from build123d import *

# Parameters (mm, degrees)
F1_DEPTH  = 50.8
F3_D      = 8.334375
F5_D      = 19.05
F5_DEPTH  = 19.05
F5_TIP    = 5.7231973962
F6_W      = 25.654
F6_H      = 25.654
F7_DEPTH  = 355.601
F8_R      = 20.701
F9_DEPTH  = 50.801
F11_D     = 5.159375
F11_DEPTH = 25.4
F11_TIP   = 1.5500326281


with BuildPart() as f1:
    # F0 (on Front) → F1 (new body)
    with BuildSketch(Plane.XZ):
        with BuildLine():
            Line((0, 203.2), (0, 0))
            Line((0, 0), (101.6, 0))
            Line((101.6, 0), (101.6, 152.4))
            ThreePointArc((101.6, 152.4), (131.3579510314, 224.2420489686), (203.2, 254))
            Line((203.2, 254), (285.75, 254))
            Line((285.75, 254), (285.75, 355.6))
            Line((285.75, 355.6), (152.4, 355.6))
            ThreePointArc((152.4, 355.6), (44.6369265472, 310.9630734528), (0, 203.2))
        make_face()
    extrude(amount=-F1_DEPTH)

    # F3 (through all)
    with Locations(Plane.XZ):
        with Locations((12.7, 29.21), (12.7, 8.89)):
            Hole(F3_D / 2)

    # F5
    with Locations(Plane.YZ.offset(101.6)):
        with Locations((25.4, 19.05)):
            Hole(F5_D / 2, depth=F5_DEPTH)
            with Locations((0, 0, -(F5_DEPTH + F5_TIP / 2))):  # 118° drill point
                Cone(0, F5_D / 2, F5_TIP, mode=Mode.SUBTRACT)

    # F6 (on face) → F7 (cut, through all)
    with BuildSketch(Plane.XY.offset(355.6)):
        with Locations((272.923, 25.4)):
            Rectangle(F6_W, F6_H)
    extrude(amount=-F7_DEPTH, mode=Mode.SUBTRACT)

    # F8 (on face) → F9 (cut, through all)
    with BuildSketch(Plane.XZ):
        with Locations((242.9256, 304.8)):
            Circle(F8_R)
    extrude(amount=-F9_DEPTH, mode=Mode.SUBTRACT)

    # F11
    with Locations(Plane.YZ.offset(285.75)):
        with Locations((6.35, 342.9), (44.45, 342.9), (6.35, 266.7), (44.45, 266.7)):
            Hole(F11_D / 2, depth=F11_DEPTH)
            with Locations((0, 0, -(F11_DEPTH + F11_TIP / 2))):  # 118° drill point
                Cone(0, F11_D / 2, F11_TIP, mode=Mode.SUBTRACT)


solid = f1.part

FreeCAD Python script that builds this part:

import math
import FreeCAD as App
import Part
import Sketcher

V = App.Vector
Q = App.Units.Quantity

doc = App.newDocument("Part")
params = doc.addObject("Spreadsheet::Sheet", "Params")
for row, (alias, value) in enumerate([
    ("sketch1_radius", "4 in"),
    ("sketch1_radius2", "6 in"),
    ("sketch1_width", "4 in"),
    ("sketch1_height", "8 in"),
    ("sketch1_width2", "3.25 in"),
    ("pad1_length", "2 in"),
    ("sketch2_diameter", "0.328125 in"),
    ("hole_diameter", "0.328125 in"),
    ("sketch3_diameter", "0.75 in"),
    ("hole2_diameter", "0.75 in"),
    ("hole2_depth", "0.75 in"),
    ("sketch4_width", "1.01 in"),
    ("sketch5_diameter", "1.63 in"),
    ("sketch6_diameter", "0.203125 in"),
    ("hole3_diameter", "0.203125 in"),
    ("hole3_depth", "1 in"),
], start=1):
    params.set(f"A{row}", alias)
    params.set(f"B{row}", "=" + value)
    params.setAlias(f"B{row}", alias)

body = doc.addObject("PartDesign::Body", "Body")

sketch1 = doc.addObject("Sketcher::SketchObject", "Sketch")
body.addObject(sketch1)
sketch1.AttachmentSupport = (doc.XZ_Plane, [""])
sketch1.MapMode = "FlatFace"
sketch1.addGeometry(Part.LineSegment(V(0, 203, 0), V(0, 0, 0)), False)
sketch1.addGeometry(Part.LineSegment(V(0, 0, 0), V(102, 0, 0)), False)
sketch1.addGeometry(Part.LineSegment(V(102, 0, 0), V(102, 152, 0)), False)
sketch1.addGeometry(Part.ArcOfCircle(Part.Circle(V(203, 152, 0), V(0, 0, 1), 102), math.radians(90), math.radians(180)), False)
sketch1.addGeometry(Part.LineSegment(V(203, 254, 0), V(286, 254, 0)), False)
sketch1.addGeometry(Part.LineSegment(V(286, 254, 0), V(286, 356, 0)), False)
sketch1.addGeometry(Part.LineSegment(V(286, 356, 0), V(152, 356, 0)), False)
sketch1.addGeometry(Part.ArcOfCircle(Part.Circle(V(152, 203, 0), V(0, 0, 1), 152), math.radians(90), math.radians(180)), False)
sketch1.addConstraint(Sketcher.Constraint("Coincident", 0, 2, 1, 1))
sketch1.addConstraint(Sketcher.Constraint("Coincident", 1, 2, 2, 1))
sketch1.addConstraint(Sketcher.Constraint("Tangent", 2, 2, 3, 2))
sketch1.addConstraint(Sketcher.Constraint("Tangent", 3, 1, 4, 1))
sketch1.addConstraint(Sketcher.Constraint("Coincident", 4, 2, 5, 1))
sketch1.addConstraint(Sketcher.Constraint("Coincident", 5, 2, 6, 1))
sketch1.addConstraint(Sketcher.Constraint("Tangent", 6, 2, 7, 1))
sketch1.addConstraint(Sketcher.Constraint("Tangent", 7, 2, 0, 1))
sketch1.addConstraint(Sketcher.Constraint("Vertical", 0))
sketch1.addConstraint(Sketcher.Constraint("Horizontal", 1))
sketch1.addConstraint(Sketcher.Constraint("Vertical", 2))
sketch1.addConstraint(Sketcher.Constraint("Horizontal", 4))
sketch1.addConstraint(Sketcher.Constraint("Vertical", 5))
sketch1.addConstraint(Sketcher.Constraint("Horizontal", 6))
sketch1.addConstraint(Sketcher.Constraint("Coincident", 0, 2, -1, 1))
sketch1.addConstraint(Sketcher.Constraint("Equal", 1, 5))
sketch1.addConstraint(Sketcher.Constraint("Radius", 3, Q("4 in")))
sketch1.addConstraint(Sketcher.Constraint("Radius", 7, Q("6 in")))
sketch1.addConstraint(Sketcher.Constraint("DistanceX", 1, 1, 1, 2, Q("4 in")))
sketch1.addConstraint(Sketcher.Constraint("DistanceY", 0, 2, 0, 1, Q("8 in")))
sketch1.addConstraint(Sketcher.Constraint("DistanceX", 4, 1, 4, 2, Q("3.25 in")))
sketch1.setExpression("Constraints[16]", "Params.sketch1_radius")
sketch1.setExpression("Constraints[17]", "Params.sketch1_radius2")
sketch1.setExpression("Constraints[18]", "Params.sketch1_width")
sketch1.setExpression("Constraints[19]", "Params.sketch1_height")
sketch1.setExpression("Constraints[20]", "Params.sketch1_width2")
pad1 = doc.addObject("PartDesign::Pad", "Pad")
body.addObject(pad1)
pad1.Profile = sketch1
pad1.setExpression("Length", "Params.pad1_length")
pad1.Reversed = True

sketch2 = doc.addObject("Sketcher::SketchObject", "Sketch001")
body.addObject(sketch2)
sketch2.AttachmentSupport = (doc.XZ_Plane, [""])
sketch2.MapMode = "FlatFace"
sketch2.addGeometry(Part.Circle(V(12.7, 29.2, 0), V(0, 0, 1), 4.2), False)
sketch2.addGeometry(Part.Circle(V(12.7, 8.9, 0), V(0, 0, 1), 4.2), False)
sketch2.addConstraint(Sketcher.Constraint("Equal", 0, 1))
sketch2.addConstraint(Sketcher.Constraint("Vertical", 0, 3, 1, 3))
sketch2.addConstraint(Sketcher.Constraint("Diameter", 0, Q("0.328125 in")))
sketch2.addConstraint(Sketcher.Constraint("DistanceX", -1, 1, 0, 3, Q("0.5 in")))
sketch2.addConstraint(Sketcher.Constraint("DistanceY", 1, 3, 0, 3, Q("0.8 in")))
sketch2.addConstraint(Sketcher.Constraint("DistanceY", -1, 1, 0, 3, Q("1.15 in")))
sketch2.setExpression("Constraints[2]", "Params.sketch2_diameter")
doc.recompute()
hole = doc.addObject("PartDesign::Hole", "Hole")
body.addObject(hole)
hole.Profile = sketch2
hole.ThreadType = "None"
hole.setExpression("Diameter", "Params.hole_diameter")
hole.DepthType = "ThroughAll"

sketch3 = doc.addObject("Sketcher::SketchObject", "Sketch002")
body.addObject(sketch3)
sketch3.AttachmentSupport = (doc.YZ_Plane, [""])
sketch3.MapMode = "FlatFace"
sketch3.AttachmentOffset = App.Placement(V(0, 0, 4 * 25.4), App.Rotation())
sketch3.addGeometry(Part.Circle(V(25, 19, 0), V(0, 0, 1), 10), False)
sketch3.addConstraint(Sketcher.Constraint("Diameter", 0, Q("0.75 in")))
sketch3.addConstraint(Sketcher.Constraint("DistanceX", -1, 1, 0, 3, Q("1 in")))
sketch3.addConstraint(Sketcher.Constraint("DistanceY", -1, 1, 0, 3, Q("0.75 in")))
sketch3.setExpression("Constraints[0]", "Params.sketch3_diameter")
doc.recompute()
hole2 = doc.addObject("PartDesign::Hole", "Hole001")
body.addObject(hole2)
hole2.Profile = sketch3
hole2.ThreadType = "None"
hole2.setExpression("Diameter", "Params.hole2_diameter")
hole2.DepthType = "Dimension"
hole2.setExpression("Depth", "Params.hole2_depth")
hole2.DrillPoint = "Angled"
hole2.DrillPointAngle = 118

sketch4 = doc.addObject("Sketcher::SketchObject", "Sketch003")
body.addObject(sketch4)
sketch4.AttachmentSupport = (doc.XY_Plane, [""])
sketch4.MapMode = "FlatFace"
sketch4.AttachmentOffset = App.Placement(V(0, 0, 14 * 25.4), App.Rotation())
sketch4.addGeometry(Part.LineSegment(V(260, 38, 0), V(260, 13, 0)), False)
sketch4.addGeometry(Part.LineSegment(V(260, 13, 0), V(286, 13, 0)), False)
sketch4.addGeometry(Part.LineSegment(V(286, 13, 0), V(286, 38, 0)), False)
sketch4.addGeometry(Part.LineSegment(V(286, 38, 0), V(260, 38, 0)), False)
sketch4.addConstraint(Sketcher.Constraint("Coincident", 0, 2, 1, 1))
sketch4.addConstraint(Sketcher.Constraint("Coincident", 1, 2, 2, 1))
sketch4.addConstraint(Sketcher.Constraint("Coincident", 2, 2, 3, 1))
sketch4.addConstraint(Sketcher.Constraint("Coincident", 3, 2, 0, 1))
sketch4.addConstraint(Sketcher.Constraint("Vertical", 0))
sketch4.addConstraint(Sketcher.Constraint("Horizontal", 1))
sketch4.addConstraint(Sketcher.Constraint("Vertical", 2))
sketch4.addConstraint(Sketcher.Constraint("Horizontal", 3))
sketch4.addConstraint(Sketcher.Constraint("Equal", 3, 0))
sketch4.addConstraint(Sketcher.Constraint("DistanceX", 1, 1, 1, 2, Q("1.01 in")))
sketch4.addConstraint(Sketcher.Constraint("DistanceX", -1, 1, 0, 2, Q("10.24 in")))
sketch4.addConstraint(Sketcher.Constraint("DistanceY", -1, 1, 0, 2, Q("0.495 in")))
sketch4.setExpression("Constraints[9]", "Params.sketch4_width")
pocket1 = doc.addObject("PartDesign::Pocket", "Pocket")
body.addObject(pocket1)
pocket1.Profile = sketch4
pocket1.Type = "ThroughAll"

sketch5 = doc.addObject("Sketcher::SketchObject", "Sketch004")
body.addObject(sketch5)
sketch5.AttachmentSupport = (doc.XZ_Plane, [""])
sketch5.MapMode = "FlatFace"
sketch5.addGeometry(Part.Circle(V(243, 305, 0), V(0, 0, 1), 21), False)
sketch5.addConstraint(Sketcher.Constraint("Diameter", 0, Q("1.63 in")))
sketch5.addConstraint(Sketcher.Constraint("DistanceY", -1, 1, 0, 3, Q("12 in")))
sketch5.addConstraint(Sketcher.Constraint("DistanceX", -1, 1, 0, 3, Q("9.564 in")))
sketch5.setExpression("Constraints[0]", "Params.sketch5_diameter")
pocket2 = doc.addObject("PartDesign::Pocket", "Pocket001")
body.addObject(pocket2)
pocket2.Profile = sketch5
pocket2.Type = "ThroughAll"

sketch6 = doc.addObject("Sketcher::SketchObject", "Sketch005")
body.addObject(sketch6)
sketch6.AttachmentSupport = (doc.YZ_Plane, [""])
sketch6.MapMode = "FlatFace"
sketch6.AttachmentOffset = App.Placement(V(0, 0, 11.25 * 25.4), App.Rotation())
sketch6.addGeometry(Part.Circle(V(6.3, 342.9, 0), V(0, 0, 1), 2.6), False)
sketch6.addGeometry(Part.Circle(V(44.5, 342.9, 0), V(0, 0, 1), 2.6), False)
sketch6.addGeometry(Part.Circle(V(6.3, 266.7, 0), V(0, 0, 1), 2.6), False)
sketch6.addGeometry(Part.Circle(V(44.5, 266.7, 0), V(0, 0, 1), 2.6), False)
sketch6.addConstraint(Sketcher.Constraint("Equal", 0, 1))
sketch6.addConstraint(Sketcher.Constraint("Equal", 1, 2))
sketch6.addConstraint(Sketcher.Constraint("Equal", 2, 3))
sketch6.addConstraint(Sketcher.Constraint("Horizontal", 0, 3, 1, 3))
sketch6.addConstraint(Sketcher.Constraint("Horizontal", 2, 3, 3, 3))
sketch6.addConstraint(Sketcher.Constraint("Vertical", 0, 3, 2, 3))
sketch6.addConstraint(Sketcher.Constraint("Vertical", 1, 3, 3, 3))
sketch6.addConstraint(Sketcher.Constraint("Diameter", 0, Q("0.203125 in")))
sketch6.addConstraint(Sketcher.Constraint("DistanceY", 2, 3, 0, 3, Q("3 in")))
sketch6.addConstraint(Sketcher.Constraint("DistanceY", -1, 1, 0, 3, Q("13.5 in")))
sketch6.addConstraint(Sketcher.Constraint("DistanceX", 0, 3, 1, 3, Q("1.5 in")))
sketch6.addConstraint(Sketcher.Constraint("DistanceX", -1, 1, 0, 3, Q("0.25 in")))
sketch6.setExpression("Constraints[7]", "Params.sketch6_diameter")
doc.recompute()
hole3 = doc.addObject("PartDesign::Hole", "Hole002")
body.addObject(hole3)
hole3.Profile = sketch6
hole3.ThreadType = "None"
hole3.setExpression("Diameter", "Params.hole3_diameter")
hole3.DepthType = "Dimension"
hole3.setExpression("Depth", "Params.hole3_depth")
hole3.DrillPoint = "Angled"
hole3.DrillPointAngle = 118

doc.recompute()
